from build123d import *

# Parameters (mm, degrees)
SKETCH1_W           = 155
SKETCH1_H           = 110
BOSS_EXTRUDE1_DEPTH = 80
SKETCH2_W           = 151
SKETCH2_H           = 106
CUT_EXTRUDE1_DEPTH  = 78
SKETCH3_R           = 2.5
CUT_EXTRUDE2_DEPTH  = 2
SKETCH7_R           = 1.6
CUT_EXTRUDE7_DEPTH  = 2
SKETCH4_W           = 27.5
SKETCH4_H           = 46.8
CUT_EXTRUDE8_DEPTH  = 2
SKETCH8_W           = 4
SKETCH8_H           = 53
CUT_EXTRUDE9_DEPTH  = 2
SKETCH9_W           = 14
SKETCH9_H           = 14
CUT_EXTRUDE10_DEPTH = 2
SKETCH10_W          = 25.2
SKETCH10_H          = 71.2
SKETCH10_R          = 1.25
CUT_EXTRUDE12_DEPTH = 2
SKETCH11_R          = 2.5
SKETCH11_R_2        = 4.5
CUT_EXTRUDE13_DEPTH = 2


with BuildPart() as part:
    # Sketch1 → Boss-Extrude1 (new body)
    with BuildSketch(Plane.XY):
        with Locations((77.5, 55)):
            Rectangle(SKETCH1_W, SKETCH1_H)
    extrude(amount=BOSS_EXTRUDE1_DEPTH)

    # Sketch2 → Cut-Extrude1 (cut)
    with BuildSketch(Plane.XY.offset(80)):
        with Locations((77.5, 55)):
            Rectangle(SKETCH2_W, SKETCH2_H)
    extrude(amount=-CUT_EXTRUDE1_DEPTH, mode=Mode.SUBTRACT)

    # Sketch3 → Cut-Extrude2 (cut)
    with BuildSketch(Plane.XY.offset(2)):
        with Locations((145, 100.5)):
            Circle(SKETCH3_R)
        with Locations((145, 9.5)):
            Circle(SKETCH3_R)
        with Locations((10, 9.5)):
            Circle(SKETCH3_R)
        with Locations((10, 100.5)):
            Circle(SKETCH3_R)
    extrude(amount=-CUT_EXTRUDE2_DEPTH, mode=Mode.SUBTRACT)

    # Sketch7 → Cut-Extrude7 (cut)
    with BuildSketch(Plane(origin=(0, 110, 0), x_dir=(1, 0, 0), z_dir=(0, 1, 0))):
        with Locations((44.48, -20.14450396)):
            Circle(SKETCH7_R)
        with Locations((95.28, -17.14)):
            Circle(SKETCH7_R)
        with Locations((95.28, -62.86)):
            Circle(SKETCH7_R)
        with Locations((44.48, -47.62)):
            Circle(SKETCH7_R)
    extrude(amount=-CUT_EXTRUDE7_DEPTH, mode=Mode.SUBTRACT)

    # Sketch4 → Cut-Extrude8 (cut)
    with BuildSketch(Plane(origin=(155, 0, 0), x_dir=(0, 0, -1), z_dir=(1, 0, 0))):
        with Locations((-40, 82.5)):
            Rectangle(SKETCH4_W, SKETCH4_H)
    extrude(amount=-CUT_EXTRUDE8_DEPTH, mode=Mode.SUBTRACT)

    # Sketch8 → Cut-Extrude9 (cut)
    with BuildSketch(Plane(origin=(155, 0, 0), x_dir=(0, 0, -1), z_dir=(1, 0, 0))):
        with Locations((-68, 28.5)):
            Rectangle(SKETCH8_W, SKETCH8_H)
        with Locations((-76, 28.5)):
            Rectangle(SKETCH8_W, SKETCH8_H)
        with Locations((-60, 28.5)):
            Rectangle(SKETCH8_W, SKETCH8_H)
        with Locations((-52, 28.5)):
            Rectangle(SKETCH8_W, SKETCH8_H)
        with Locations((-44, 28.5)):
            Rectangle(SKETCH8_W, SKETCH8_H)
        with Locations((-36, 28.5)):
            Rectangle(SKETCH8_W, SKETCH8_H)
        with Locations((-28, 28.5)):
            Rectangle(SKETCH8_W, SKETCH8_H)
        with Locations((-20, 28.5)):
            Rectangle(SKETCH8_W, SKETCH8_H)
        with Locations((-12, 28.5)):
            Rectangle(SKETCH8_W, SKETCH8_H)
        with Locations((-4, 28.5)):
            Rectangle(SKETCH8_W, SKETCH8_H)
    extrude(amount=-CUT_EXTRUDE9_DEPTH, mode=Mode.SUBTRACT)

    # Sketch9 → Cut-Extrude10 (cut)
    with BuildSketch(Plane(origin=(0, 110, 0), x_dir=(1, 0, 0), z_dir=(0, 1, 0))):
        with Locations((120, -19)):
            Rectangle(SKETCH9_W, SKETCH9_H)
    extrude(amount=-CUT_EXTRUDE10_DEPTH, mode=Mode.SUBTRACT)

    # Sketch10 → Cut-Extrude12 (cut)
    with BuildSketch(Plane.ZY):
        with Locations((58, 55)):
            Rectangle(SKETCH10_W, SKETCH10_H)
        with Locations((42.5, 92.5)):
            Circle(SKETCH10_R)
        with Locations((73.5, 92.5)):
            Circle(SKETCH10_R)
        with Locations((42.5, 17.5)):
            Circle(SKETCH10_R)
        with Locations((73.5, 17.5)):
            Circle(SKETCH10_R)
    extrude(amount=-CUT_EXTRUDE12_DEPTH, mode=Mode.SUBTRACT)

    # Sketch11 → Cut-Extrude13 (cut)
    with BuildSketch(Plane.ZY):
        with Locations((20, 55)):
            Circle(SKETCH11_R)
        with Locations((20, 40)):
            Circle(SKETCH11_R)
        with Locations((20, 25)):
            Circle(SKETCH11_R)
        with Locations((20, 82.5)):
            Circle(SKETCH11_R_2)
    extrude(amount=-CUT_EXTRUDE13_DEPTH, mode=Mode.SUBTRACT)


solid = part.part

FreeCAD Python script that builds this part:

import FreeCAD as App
import Part
import Sketcher
Q = App.Units.Quantity


def add_polygon(sketch, points):
    """Adds a closed chain of lines whose ends are joined by coincident constraints."""
    first, n = sketch.GeometryCount, len(points)
    for a, b in zip(points, points[1:] + points[:1]):
        sketch.addGeometry(Part.LineSegment(App.Vector(*a, 0), App.Vector(*b, 0)), False)
    for i in range(n):
        sketch.addConstraint(Sketcher.Constraint("Coincident", first + i, 2, first + (i + 1) % n, 1))

doc = App.newDocument("Part")
params = doc.addObject("Spreadsheet::Sheet", "Params")
for row, (alias, value) in enumerate([
    ("sketch1_width", "155 mm"),
    ("sketch1_height", "110 mm"),
    ("pad1_length", "80 mm"),
    ("sketch2_width", "151 mm"),
    ("sketch2_height", "106 mm"),
    ("pocket1_length", "78 mm"),
    ("sketch3_diameter", "5 mm"),
    ("pocket2_length", "2 mm"),
    ("sketch4_diameter", "3.2 mm"),
    ("pocket3_length", "2 mm"),
    ("sketch5_width", "46.8 mm"),
    ("sketch5_height", "27.5 mm"),
    ("pocket4_length", "2 mm"),
    ("sketch6_width", "53 mm"),
    ("sketch6_height", "4 mm"),
    ("pocket5_length", "2 mm"),
    ("sketch7_width", "14 mm"),
    ("pocket6_length", "2 mm"),
    ("sketch8_diameter", "2.5 mm"),
    ("sketch8_width", "71.2 mm"),
    ("sketch8_height", "25.2 mm"),
    ("pocket7_length", "2 mm"),
    ("sketch9_diameter", "5 mm"),
    ("sketch9_diameter2", "9 mm"),
    ("pocket8_length", "2 mm"),
], start=1):
    params.set(f"A{row}", alias)
    params.set(f"B{row}", "=" + value)
    params.setAlias(f"B{row}", alias)

body = doc.addObject("PartDesign::Body", "Body")

# Sketch on XY plane
sketch1 = body.newObject("Sketcher::SketchObject", "Sketch")
sketch1.AttachmentSupport = (doc.getObject("XY_Plane"), [""])
sketch1.MapMode = "FlatFace"
add_polygon(sketch1, [(0, 110), (0, 0), (155, 0), (155, 110)])  # lines 0-3
sketch1.addConstraint([
    Sketcher.Constraint("Vertical", 0),
    Sketcher.Constraint("Horizontal", 1),
    Sketcher.Constraint("Vertical", 2),
    Sketcher.Constraint("Horizontal", 3),
    Sketcher.Constraint("Coincident", 0, 2, -1, 1),
    Sketcher.Constraint("DistanceX", 1, 1, 1, 2, Q("155 mm")),
    Sketcher.Constraint("DistanceY", 0, 2, 0, 1, Q("110 mm")),
])
sketch1.setExpression("Constraints[9]", "Params.sketch1_width")
sketch1.setExpression("Constraints[10]", "Params.sketch1_height")
pad1 = body.newObject("PartDesign::Pad", "Pad")
pad1.Profile = sketch1
pad1.setExpression("Length", "Params.pad1_length")

# Sketch on XY plane
sketch2 = body.newObject("Sketcher::SketchObject", "Sketch001")
sketch2.AttachmentSupport = (doc.getObject("XY_Plane"), [""])
sketch2.MapMode = "FlatFace"
sketch2.AttachmentOffset = App.Placement(App.Vector(0, 0, 80), App.Rotation())
add_polygon(sketch2, [(2, 108), (2, 2), (153, 2), (153, 108)])  # lines 0-3
sketch2.addConstraint([
    Sketcher.Constraint("Vertical", 0),
    Sketcher.Constraint("Horizontal", 1),
    Sketcher.Constraint("Vertical", 2),
    Sketcher.Constraint("Horizontal", 3),
    Sketcher.Constraint("DistanceX", 1, 1, 1, 2, Q("151 mm")),
    Sketcher.Constraint("DistanceY", 0, 2, 0, 1, Q("106 mm")),
    Sketcher.Constraint("DistanceX", -1, 1, 0, 2, Q("2 mm")),
    Sketcher.Constraint("DistanceY", -1, 1, 0, 2, Q("2 mm")),
])
sketch2.setExpression("Constraints[8]", "Params.sketch2_width")
sketch2.setExpression("Constraints[9]", "Params.sketch2_height")
pocket1 = body.newObject("PartDesign::Pocket", "Pocket")
pocket1.Profile = sketch2
pocket1.setExpression("Length", "Params.pocket1_length")

# Sketch on XY plane
sketch3 = body.newObject("Sketcher::SketchObject", "Sketch002")
sketch3.AttachmentSupport = (doc.getObject("XY_Plane"), [""])
sketch3.MapMode = "FlatFace"
sketch3.AttachmentOffset = App.Placement(App.Vector(0, 0, 2), App.Rotation())
sketch3.addGeometry([
    Part.Circle(App.Vector(145, 100.5, 0), App.Vector(0, 0, 1), 2.5),
    Part.Circle(App.Vector(145, 9.5, 0), App.Vector(0, 0, 1), 2.5),
    Part.Circle(App.Vector(10, 9.5, 0), App.Vector(0, 0, 1), 2.5),
    Part.Circle(App.Vector(10, 100.5, 0), App.Vector(0, 0, 1), 2.5),
], False)
sketch3.addConstraint([
    Sketcher.Constraint("Equal", 0, 1),
    Sketcher.Constraint("Equal", 1, 2),
    Sketcher.Constraint("Equal", 2, 3),
    Sketcher.Constraint("Horizontal", 1, 3, 2, 3),
    Sketcher.Constraint("Horizontal", 0, 3, 3, 3),
    Sketcher.Constraint("Vertical", 0, 3, 1, 3),
    Sketcher.Constraint("Vertical", 2, 3, 3, 3),
    Sketcher.Constraint("Diameter", 0, Q("5 mm")),
    Sketcher.Constraint("DistanceX", -1, 1, 0, 3, Q("145 mm")),
    Sketcher.Constraint("DistanceX", -1, 1, 2, 3, Q("10 mm")),
    Sketcher.Constraint("DistanceY", 1, 3, 0, 3, Q("91 mm")),
    Sketcher.Constraint("DistanceY", -1, 1, 0, 3, Q("100.5 mm")),
])
sketch3.setExpression("Constraints[7]", "Params.sketch3_diameter")
pocket2 = body.newObject("PartDesign::Pocket", "Pocket001")
pocket2.Profile = sketch3
pocket2.setExpression("Length", "Params.pocket2_length")

# Sketch on XZ plane
sketch4 = body.newObject("Sketcher::SketchObject", "Sketch003")
sketch4.AttachmentSupport = (doc.getObject("XZ_Plane"), [""])
sketch4.MapMode = "FlatFace"
sketch4.AttachmentOffset = App.Placement(App.Vector(0, 0, -110), App.Rotation())
sketch4.addGeometry([
    Part.Circle(App.Vector(44.5, 20.1, 0), App.Vector(0, 0, 1), 1.6),
    Part.Circle(App.Vector(95.3, 17.1, 0), App.Vector(0, 0, 1), 1.6),
    Part.Circle(App.Vector(95.3, 62.9, 0), App.Vector(0, 0, 1), 1.6),
    Part.Circle(App.Vector(44.5, 47.6, 0), App.Vector(0, 0, 1), 1.6),
], False)
sketch4.addConstraint([
    Sketcher.Constraint("Equal", 0, 1),
    Sketcher.Constraint("Equal", 1, 2),
    Sketcher.Constraint("Equal", 2, 3),
    Sketcher.Constraint("Vertical", 1, 3, 2, 3),
    Sketcher.Constraint("Vertical", 0, 3, 3, 3),
    Sketcher.Constraint("Diameter", 0, Q("3.2 mm")),
    Sketcher.Constraint("DistanceX", 0, 3, 1, 3, Q("50.8 mm")),
    Sketcher.Constraint("DistanceX", -1, 1, 0, 3, Q("44.48 mm")),
    Sketcher.Constraint("DistanceY", -1, 1, 1, 3, Q("17.14 mm")),
    Sketcher.Constraint("DistanceY", -1, 1, 2, 3, Q("62.86 mm")),
    Sketcher.Constraint("DistanceY", -1, 1, 3, 3, Q("47.62 mm")),
    Sketcher.Constraint("DistanceY", -1, 1, 0, 3, Q("20.144504 mm")),
])
sketch4.setExpression("Constraints[5]", "Params.sketch4_diameter")
pocket3 = body.newObject("PartDesign::Pocket", "Pocket002")
pocket3.Profile = sketch4
pocket3.setExpression("Length", "Params.pocket3_length")
pocket3.Reversed = True

# Sketch on YZ plane
sketch5 = body.newObject("Sketcher::SketchObject", "Sketch004")
sketch5.AttachmentSupport = (doc.getObject("YZ_Plane"), [""])
sketch5.MapMode = "FlatFace"
sketch5.AttachmentOffset = App.Placement(App.Vector(0, 0, 155), App.Rotation())
add_polygon(sketch5, [(106, 54), (59, 54), (59, 26), (106, 26)])  # lines 0-3
sketch5.addConstraint([
    Sketcher.Constraint("Horizontal", 0),
    Sketcher.Constraint("Vertical", 1),
    Sketcher.Constraint("Horizontal", 2),
    Sketcher.Constraint("Vertical", 3),
    Sketcher.Constraint("DistanceX", 0, 2, 0, 1, Q("46.8 mm")),
    Sketcher.Constraint("DistanceY", 1, 2, 1, 1, Q("27.5 mm")),
    Sketcher.Constraint("DistanceX", -1, 1, 0, 2, Q("59.1 mm")),
    Sketcher.Constraint("DistanceY", -1, 1, 0, 2, Q("53.75 mm")),
])
sketch5.setExpression("Constraints[8]", "Params.sketch5_width")
sketch5.setExpression("Constraints[9]", "Params.sketch5_height")
pocket4 = body.newObject("PartDesign::Pocket", "Pocket003")
pocket4.Profile = sketch5
pocket4.setExpression("Length", "Params.pocket4_length")

# Sketch on YZ plane
sketch6 = body.newObject("Sketcher::SketchObject", "Sketch005")
sketch6.AttachmentSupport = (doc.getObject("YZ_Plane"), [""])
sketch6.MapMode = "FlatFace"
sketch6.AttachmentOffset = App.Placement(App.Vector(0, 0, 155), App.Rotation())
add_polygon(sketch6, [(55, 70), (2, 70), (2, 66), (55, 66)])  # lines 0-3
add_polygon(sketch6, [(55, 78), (2, 78), (2, 74), (55, 74)])  # lines 4-7
add_polygon(sketch6, [(55, 62), (2, 62), (2, 58), (55, 58)])  # lines 8-11
add_polygon(sketch6, [(55, 54), (2, 54), (2, 50), (55, 50)])  # lines 12-15
add_polygon(sketch6, [(55, 46), (2, 46), (2, 42), (55, 42)])  # lines 16-19
add_polygon(sketch6, [(55, 38), (2, 38), (2, 34), (55, 34)])  # lines 20-23
add_polygon(sketch6, [(55, 30), (2, 30), (2, 26), (55, 26)])  # lines 24-27
add_polygon(sketch6, [(55, 22), (2, 22), (2, 18), (55, 18)])  # lines 28-31
add_polygon(sketch6, [(55, 14), (2, 14), (2, 10), (55, 10)])  # lines 32-35
add_polygon(sketch6, [(55, 6), (2, 6), (2, 2), (55, 2)])  # lines 36-39
sketch6.addConstraint([
    Sketcher.Constraint("Horizontal", 0),
    Sketcher.Constraint("Vertical", 1),
    Sketcher.Constraint("Horizontal", 2),
    Sketcher.Constraint("Vertical", 3),
    Sketcher.Constraint("Horizontal", 4),
    Sketcher.Constraint("Vertical", 5),
    Sketcher.Constraint("Horizontal", 6),
    Sketcher.Constraint("Vertical", 7),
    Sketcher.Constraint("Horizontal", 8),
    Sketcher.Constraint("Vertical", 9),
    Sketcher.Constraint("Horizontal", 10),
    Sketcher.Constraint("Vertical", 11),
    Sketcher.Constraint("Horizontal", 12),
    Sketcher.Constraint("Vertical", 13),
    Sketcher.Constraint("Horizontal", 14),
    Sketcher.Constraint("Vertical", 15),
    Sketcher.Constraint("Horizontal", 16),
    Sketcher.Constraint("Vertical", 17),
    Sketcher.Constraint("Horizontal", 18),
    Sketcher.Constraint("Vertical", 19),
    Sketcher.Constraint("Horizontal", 20),
    Sketcher.Constraint("Vertical", 21),
    Sketcher.Constraint("Horizontal", 22),
    Sketcher.Constraint("Vertical", 23),
    Sketcher.Constraint("Horizontal", 24),
    Sketcher.Constraint("Vertical", 25),
    Sketcher.Constraint("Horizontal", 26),
    Sketcher.Constraint("Vertical", 27),
    Sketcher.Constraint("Horizontal", 28),
    Sketcher.Constraint("Vertical", 29),
    Sketcher.Constraint("Horizontal", 30),
    Sketcher.Constraint("Vertical", 31),
    Sketcher.Constraint("Horizontal", 32),
    Sketcher.Constraint("Vertical", 33),
    Sketcher.Constraint("Horizontal", 34),
    Sketcher.Constraint("Vertical", 35),
    Sketcher.Constraint("Horizontal", 36),
    Sketcher.Constraint("Vertical", 37),
    Sketcher.Constraint("Horizontal", 38),
    Sketcher.Constraint("Vertical", 39),
    Sketcher.Constraint("Vertical", 1, 2, 4, 2),
    Sketcher.Constraint("Vertical", 3, 2, 6, 2),
    Sketcher.Constraint("Vertical", 5, 2, 8, 2),
    Sketcher.Constraint("Vertical", 7, 2, 10, 2),
    Sketcher.Constraint("Vertical", 9, 2, 12, 2),
    Sketcher.Constraint("Vertical", 11, 2, 14, 2),
    Sketcher.Constraint("Vertical", 13, 2, 16, 2),
    Sketcher.Constraint("Vertical", 15, 2, 18, 2),
    Sketcher.Constraint("Vertical", 17, 2, 20, 2),
    Sketcher.Constraint("Vertical", 19, 2, 22, 2),
    Sketcher.Constraint("Vertical", 21, 2, 24, 2),
    Sketcher.Constraint("Vertical", 23, 2, 26, 2),
    Sketcher.Constraint("Vertical", 25, 2, 28, 2),
    Sketcher.Constraint("Vertical", 27, 2, 30, 2),
    Sketcher.Constraint("Vertical", 29, 2, 32, 2),
    Sketcher.Constraint("Vertical", 31, 2, 34, 2),
    Sketcher.Constraint("Vertical", 33, 2, 36, 2),
    Sketcher.Constraint("Vertical", 35, 2, 38, 2),
    Sketcher.Constraint("Equal", 3, 5),
    Sketcher.Constraint("Equal", 7, 9),
    Sketcher.Constraint("Equal", 11, 13),
    Sketcher.Constraint("Equal", 15, 17),
    Sketcher.Constraint("Equal", 19, 21),
    Sketcher.Constraint("Equal", 23, 25),
    Sketcher.Constraint("Equal", 27, 29),
    Sketcher.Constraint("Equal", 31, 33),
    Sketcher.Constraint("Equal", 35, 37),
    Sketcher.Constraint("DistanceX", 0, 2, 0, 1, Q("53 mm")),
    Sketcher.Constraint("DistanceY", 1, 2, 1, 1, Q("4 mm")),
    Sketcher.Constraint("DistanceX", -1, 1, 0, 2, Q("2 mm")),
    Sketcher.Constraint("DistanceY", -1, 1, 0, 2, Q("70 mm")),
    Sketcher.Constraint("DistanceY", -1, 1, 4, 2, Q("78 mm")),
    Sketcher.Constraint("DistanceY", -1, 1, 8, 2, Q("62 mm")),
    Sketcher.Constraint("DistanceY", -1, 1, 12, 2, Q("54 mm")),
    Sketcher.Constraint("DistanceY", -1, 1, 16, 2, Q("46 mm")),
    Sketcher.Constraint("DistanceY", -1, 1, 20, 2, Q("38 mm")),
    Sketcher.Constraint("DistanceY", -1, 1, 24, 2, Q("30 mm")),
    Sketcher.Constraint("DistanceY", -1, 1, 28, 2, Q("22 mm")),
    Sketcher.Constraint("DistanceY", -1, 1, 32, 2, Q("14 mm")),
    Sketcher.Constraint("DistanceY", -1, 1, 36, 2, Q("6 mm")),
])
sketch6.setExpression("Constraints[107]", "Params.sketch6_width")
sketch6.setExpression("Constraints[108]", "Params.sketch6_height")
pocket5 = body.newObject("PartDesign::Pocket", "Pocket004")
pocket5.Profile = sketch6
pocket5.setExpression("Length", "Params.pocket5_length")

# Sketch on XZ plane
sketch7 = body.newObject("Sketcher::SketchObject", "Sketch006")
sketch7.AttachmentSupport = (doc.getObject("XZ_Plane"), [""])
sketch7.MapMode = "FlatFace"
sketch7.AttachmentOffset = App.Placement(App.Vector(0, 0, -110), App.Rotation())
add_polygon(sketch7, [(113, 12), (113, 26), (127, 26), (127, 12)])  # lines 0-3
sketch7.addConstraint([
    Sketcher.Constraint("Vertical", 0),
    Sketcher.Constraint("Horizontal", 1),
    Sketcher.Constraint("Vertical", 2),
    Sketcher.Constraint("Horizontal", 3),
    Sketcher.Constraint("Equal", 3, 0),
    Sketcher.Constraint("DistanceX", 1, 1, 1, 2, Q("14 mm")),
    Sketcher.Constraint("DistanceX", -1, 1, 0, 2, Q("113 mm")),
    Sketcher.Constraint("DistanceY", -1, 1, 0, 2, Q("26 mm")),
])
sketch7.setExpression("Constraints[9]", "Params.sketch7_width")
pocket6 = body.newObject("PartDesign::Pocket", "Pocket005")
pocket6.Profile = sketch7
pocket6.setExpression("Length", "Params.pocket6_length")
pocket6.Reversed = True

# Sketch on YZ plane
sketch8 = body.newObject("Sketcher::SketchObject", "Sketch007")
sketch8.AttachmentSupport = (doc.getObject("YZ_Plane"), [""])
sketch8.MapMode = "FlatFace"
add_polygon(sketch8, [(90.6, 45.4), (19.4, 45.4), (19.4, 70.6), (90.6, 70.6)])  # lines 0-3
sketch8.addGeometry(Part.Circle(App.Vector(92.5, 42.5, 0), App.Vector(0, 0, 1), 1.2), False)  # 4
sketch8.addGeometry(Part.Circle(App.Vector(92.5, 73.5, 0), App.Vector(0, 0, 1), 1.2), False)  # 5
sketch8.addGeometry(Part.Circle(App.Vector(17.5, 42.5, 0), App.Vector(0, 0, 1), 1.2), False)  # 6
sketch8.addGeometry(Part.Circle(App.Vector(17.5, 73.5, 0), App.Vector(0, 0, 1), 1.2), False)  # 7
sketch8.addConstraint([
    Sketcher.Constraint("Horizontal", 0),
    Sketcher.Constraint("Vertical", 1),
    Sketcher.Constraint("Horizontal", 2),
    Sketcher.Constraint("Vertical", 3),
    Sketcher.Constraint("Equal", 4, 5),
    Sketcher.Constraint("Equal", 5, 6),
    Sketcher.Constraint("Equal", 6, 7),
    Sketcher.Constraint("Horizontal", 4, 3, 6, 3),
    Sketcher.Constraint("Horizontal", 5, 3, 7, 3),
    Sketcher.Constraint("Vertical", 4, 3, 5, 3),
    Sketcher.Constraint("Vertical", 6, 3, 7, 3),
    Sketcher.Constraint("Diameter", 4, Q("2.5 mm")),
    Sketcher.Constraint("DistanceX", 0, 2, 0, 1, Q("71.2 mm")),
    Sketcher.Constraint("DistanceY", 1, 1, 1, 2, Q("25.2 mm")),
    Sketcher.Constraint("DistanceY", 4, 3, 5, 3, Q("31 mm")),
    Sketcher.Constraint("DistanceX", 6, 3, 4, 3, Q("75 mm")),
    Sketcher.Constraint("DistanceX", -1, 1, 4, 3, Q("92.5 mm")),
    Sketcher.Constraint("DistanceY", -1, 1, 4, 3, Q("42.5 mm")),
    Sketcher.Constraint("DistanceX", -1, 1, 0, 2, Q("19.4 mm")),
    Sketcher.Constraint("DistanceY", -1, 1, 0, 2, Q("45.4 mm")),
])
sketch8.setExpression("Constraints[15]", "Params.sketch8_diameter")
sketch8.setExpression("Constraints[16]", "Params.sketch8_width")
sketch8.setExpression("Constraints[17]", "Params.sketch8_height")
pocket7 = body.newObject("PartDesign::Pocket", "Pocket006")
pocket7.Profile = sketch8
pocket7.setExpression("Length", "Params.pocket7_length")
pocket7.Reversed = True

# Sketch on YZ plane
sketch9 = body.newObject("Sketcher::SketchObject", "Sketch008")
sketch9.AttachmentSupport = (doc.getObject("YZ_Plane"), [""])
sketch9.MapMode = "FlatFace"
sketch9.addGeometry([
    Part.Circle(App.Vector(55, 20, 0), App.Vector(0, 0, 1), 2.5),
    Part.Circle(App.Vector(40, 20, 0), App.Vector(0, 0, 1), 2.5),
    Part.Circle(App.Vector(25, 20, 0), App.Vector(0, 0, 1), 2.5),
    Part.Circle(App.Vector(82.5, 20, 0), App.Vector(0, 0, 1), 4.5),
], False)
sketch9.addConstraint([
    Sketcher.Constraint("Equal", 0, 1),
    Sketcher.Constraint("Equal", 1, 2),
    Sketcher.Constraint("Horizontal", 0, 3, 1, 3),
    Sketcher.Constraint("Horizontal", 1, 3, 2, 3),
    Sketcher.Constraint("Horizontal", 2, 3, 3, 3),
    Sketcher.Constraint("Diameter", 0, Q("5 mm")),
    Sketcher.Constraint("Diameter", 3, Q("9 mm")),
    Sketcher.Constraint("DistanceX", -1, 1, 0, 3, Q("55 mm")),
    Sketcher.Constraint("DistanceY", -1, 1, 0, 3, Q("20 mm")),
    Sketcher.Constraint("DistanceX", -1, 1, 1, 3, Q("40 mm")),
    Sketcher.Constraint("DistanceX", -1, 1, 2, 3, Q("25 mm")),
    Sketcher.Constraint("DistanceX", -1, 1, 3, 3, Q("82.5 mm")),
])
sketch9.setExpression("Constraints[5]", "Params.sketch9_diameter")
sketch9.setExpression("Constraints[6]", "Params.sketch9_diameter2")
pocket8 = body.newObject("PartDesign::Pocket", "Pocket007")
pocket8.Profile = sketch9
pocket8.setExpression("Length", "Params.pocket8_length")
pocket8.Reversed = True

doc.recompute()
